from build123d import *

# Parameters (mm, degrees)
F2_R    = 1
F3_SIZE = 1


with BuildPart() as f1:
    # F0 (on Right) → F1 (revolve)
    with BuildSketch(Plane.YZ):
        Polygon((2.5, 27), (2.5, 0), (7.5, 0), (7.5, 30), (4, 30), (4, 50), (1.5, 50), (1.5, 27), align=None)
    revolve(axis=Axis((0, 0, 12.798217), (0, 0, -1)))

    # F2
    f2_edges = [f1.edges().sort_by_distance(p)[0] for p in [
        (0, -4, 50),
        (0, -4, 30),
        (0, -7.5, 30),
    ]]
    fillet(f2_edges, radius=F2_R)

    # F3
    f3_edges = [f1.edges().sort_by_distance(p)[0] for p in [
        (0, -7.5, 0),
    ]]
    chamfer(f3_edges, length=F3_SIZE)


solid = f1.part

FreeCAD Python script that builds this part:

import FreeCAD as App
import Part
import Sketcher
from FreeCAD import Vector


def edges_at(feature, points):
    """Names of the edges that pass closest to the given points."""
    edges = feature.Shape.Edges
    near = lambda p: min(range(len(edges)), key=lambda i: edges[i].distToShape(Part.Vertex(*p))[0])
    return sorted({f"Edge{near(p) + 1}" for p in points})


def add_polygon(sketch, points):
    """Adds a closed chain of lines whose ends are joined by coincident constraints."""
    first, n = sketch.GeometryCount, len(points)
    for a, b in zip(points, points[1:] + points[:1]):
        sketch.addGeometry(Part.LineSegment(App.Vector(*a, 0), App.Vector(*b, 0)), False)
    for i in range(n):
        sketch.addConstraint(Sketcher.Constraint("Coincident", first + i, 2, first + (i + 1) % n, 1))

doc = App.newDocument("Part")
body = doc.addObject("PartDesign::Body", "Body")

sketch1 = body.newObject("Sketcher::SketchObject", "Sketch")
sketch1.AttachmentSupport = (doc.getObject("YZ_Plane"), [""])
sketch1.MapMode = "FlatFace"
add_polygon(sketch1, [(2.5, 27), (2.5, 0), (7.5, 0), (7.5, 30), (4, 30), (4, 50), (1.5, 50), (1.5, 27)])
sketch1.addConstraint(Sketcher.Constraint("Vertical", 0))
sketch1.addConstraint(Sketcher.Constraint("Horizontal", 1))
sketch1.addConstraint(Sketcher.Constraint("Vertical", 2))
sketch1.addConstraint(Sketcher.Constraint("Horizontal", 3))
sketch1.addConstraint(Sketcher.Constraint("Vertical", 4))
sketch1.addConstraint(Sketcher.Constraint("Horizontal", 5))
sketch1.addConstraint(Sketcher.Constraint("Vertical", 6))
sketch1.addConstraint(Sketcher.Constraint("Horizontal", 7))
sketch1.addConstraint(Sketcher.Constraint("PointOnObject", 0, 2, -1))
sketch1.addConstraint(Sketcher.Constraint("DistanceX", 1, 1, 1, 2, 5.0))
sketch1.addConstraint(Sketcher.Constraint("DistanceX", 7, 1, 7, 2, 1.0))
sketch1.addConstraint(Sketcher.Constraint("DistanceY", 0, 2, 0, 1, 27.0))
sketch1.addConstraint(Sketcher.Constraint("DistanceY", 2, 1, 2, 2, 30.0))
sketch1.addConstraint(Sketcher.Constraint("DistanceY", 4, 1, 4, 2, 20.0))
sketch1.addConstraint(Sketcher.Constraint("DistanceX", 3, 2, 3, 1, 3.5))
sketch1.addConstraint(Sketcher.Constraint("DistanceX", -1, 1, 3, 2, 4.0))
revolution = body.newObject("PartDesign::Revolution", "Revolution")
revolution.Profile = sketch1
revolution.ReferenceAxis = (sketch1, ["V_Axis"])
revolution.Angle = 360
doc.recompute()

fillet = body.newObject("PartDesign::Fillet", "Fillet")
fillet.Base = (revolution, edges_at(revolution, [(0, -4, 50), (0, -4, 30), (0, -7.5, 30)]))
fillet.Radius = 1
doc.recompute()

chamfer = body.newObject("PartDesign::Chamfer", "Chamfer")
chamfer.Base = (fillet, edges_at(fillet, [(0, -7.5, 0)]))
chamfer.Size = 1

doc.recompute()
